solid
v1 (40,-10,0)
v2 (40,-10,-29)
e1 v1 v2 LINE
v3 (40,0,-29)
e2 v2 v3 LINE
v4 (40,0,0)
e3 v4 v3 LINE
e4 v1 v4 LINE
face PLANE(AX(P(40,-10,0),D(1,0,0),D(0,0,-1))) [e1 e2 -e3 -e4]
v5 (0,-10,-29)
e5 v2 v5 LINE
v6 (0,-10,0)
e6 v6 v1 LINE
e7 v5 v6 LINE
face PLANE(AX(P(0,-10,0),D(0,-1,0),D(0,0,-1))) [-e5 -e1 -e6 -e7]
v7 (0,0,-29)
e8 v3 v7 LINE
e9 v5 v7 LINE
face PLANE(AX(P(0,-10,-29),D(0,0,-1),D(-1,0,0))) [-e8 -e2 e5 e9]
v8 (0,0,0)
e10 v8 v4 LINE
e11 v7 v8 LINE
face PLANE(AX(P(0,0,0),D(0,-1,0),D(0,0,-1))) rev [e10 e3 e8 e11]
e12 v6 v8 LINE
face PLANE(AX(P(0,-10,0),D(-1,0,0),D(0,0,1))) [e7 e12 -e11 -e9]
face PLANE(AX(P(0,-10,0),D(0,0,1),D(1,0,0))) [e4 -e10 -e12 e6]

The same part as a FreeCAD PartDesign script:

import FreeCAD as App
import Part
import Sketcher
from FreeCAD import Vector
Q = App.Units.Quantity


def add_polygon(sketch, points):
    """Adds a closed chain of lines whose ends are joined by coincident constraints."""
    first, n = sketch.GeometryCount, len(points)
    for a, b in zip(points, points[1:] + points[:1]):
        sketch.addGeometry(Part.LineSegment(App.Vector(*a, 0), App.Vector(*b, 0)), False)
    for i in range(n):
        sketch.addConstraint(Sketcher.Constraint("Coincident", first + i, 2, first + (i + 1) % n, 1))

doc = App.newDocument("Part")
params = doc.addObject("Spreadsheet::Sheet", "Params")
for row, (alias, value) in enumerate([
    ("sketch1_width", "40 mm"),
    ("sketch1_height", "29 mm"),
    ("pad1_length", "10 mm"),
], start=1):
    params.set(f"A{row}", alias)
    params.set(f"B{row}", "=" + value)
    params.setAlias(f"B{row}", alias)

body = doc.addObject("PartDesign::Body", "Body")

sketch1 = body.newObject("Sketcher::SketchObject", "Sketch")
sketch1.AttachmentSupport = (doc.getObject("XZ_Plane"), [""])
sketch1.MapMode = "FlatFace"
add_polygon(sketch1, [(0, -29), (0, 0), (40, 0), (40, -29)])
sketch1.addConstraint(Sketcher.Constraint("Vertical", 0))
sketch1.addConstraint(Sketcher.Constraint("Horizontal", 1))
sketch1.addConstraint(Sketcher.Constraint("Vertical", 2))
sketch1.addConstraint(Sketcher.Constraint("Horizontal", 3))
sketch1.addConstraint(Sketcher.Constraint("Coincident", 0, 2, -1, 1))
sketch1.addConstraint(Sketcher.Constraint("DistanceX", 1, 1, 1, 2, Q("40 mm")))
sketch1.addConstraint(Sketcher.Constraint("DistanceY", 0, 1, 0, 2, Q("29 mm")))
sketch1.setExpression("Constraints[9]", "Params.sketch1_width")
sketch1.setExpression("Constraints[10]", "Params.sketch1_height")
pad1 = body.newObject("PartDesign::Pad", "Pad")
pad1.Profile = sketch1
pad1.setExpression("Length", "Params.pad1_length")

doc.recompute()
